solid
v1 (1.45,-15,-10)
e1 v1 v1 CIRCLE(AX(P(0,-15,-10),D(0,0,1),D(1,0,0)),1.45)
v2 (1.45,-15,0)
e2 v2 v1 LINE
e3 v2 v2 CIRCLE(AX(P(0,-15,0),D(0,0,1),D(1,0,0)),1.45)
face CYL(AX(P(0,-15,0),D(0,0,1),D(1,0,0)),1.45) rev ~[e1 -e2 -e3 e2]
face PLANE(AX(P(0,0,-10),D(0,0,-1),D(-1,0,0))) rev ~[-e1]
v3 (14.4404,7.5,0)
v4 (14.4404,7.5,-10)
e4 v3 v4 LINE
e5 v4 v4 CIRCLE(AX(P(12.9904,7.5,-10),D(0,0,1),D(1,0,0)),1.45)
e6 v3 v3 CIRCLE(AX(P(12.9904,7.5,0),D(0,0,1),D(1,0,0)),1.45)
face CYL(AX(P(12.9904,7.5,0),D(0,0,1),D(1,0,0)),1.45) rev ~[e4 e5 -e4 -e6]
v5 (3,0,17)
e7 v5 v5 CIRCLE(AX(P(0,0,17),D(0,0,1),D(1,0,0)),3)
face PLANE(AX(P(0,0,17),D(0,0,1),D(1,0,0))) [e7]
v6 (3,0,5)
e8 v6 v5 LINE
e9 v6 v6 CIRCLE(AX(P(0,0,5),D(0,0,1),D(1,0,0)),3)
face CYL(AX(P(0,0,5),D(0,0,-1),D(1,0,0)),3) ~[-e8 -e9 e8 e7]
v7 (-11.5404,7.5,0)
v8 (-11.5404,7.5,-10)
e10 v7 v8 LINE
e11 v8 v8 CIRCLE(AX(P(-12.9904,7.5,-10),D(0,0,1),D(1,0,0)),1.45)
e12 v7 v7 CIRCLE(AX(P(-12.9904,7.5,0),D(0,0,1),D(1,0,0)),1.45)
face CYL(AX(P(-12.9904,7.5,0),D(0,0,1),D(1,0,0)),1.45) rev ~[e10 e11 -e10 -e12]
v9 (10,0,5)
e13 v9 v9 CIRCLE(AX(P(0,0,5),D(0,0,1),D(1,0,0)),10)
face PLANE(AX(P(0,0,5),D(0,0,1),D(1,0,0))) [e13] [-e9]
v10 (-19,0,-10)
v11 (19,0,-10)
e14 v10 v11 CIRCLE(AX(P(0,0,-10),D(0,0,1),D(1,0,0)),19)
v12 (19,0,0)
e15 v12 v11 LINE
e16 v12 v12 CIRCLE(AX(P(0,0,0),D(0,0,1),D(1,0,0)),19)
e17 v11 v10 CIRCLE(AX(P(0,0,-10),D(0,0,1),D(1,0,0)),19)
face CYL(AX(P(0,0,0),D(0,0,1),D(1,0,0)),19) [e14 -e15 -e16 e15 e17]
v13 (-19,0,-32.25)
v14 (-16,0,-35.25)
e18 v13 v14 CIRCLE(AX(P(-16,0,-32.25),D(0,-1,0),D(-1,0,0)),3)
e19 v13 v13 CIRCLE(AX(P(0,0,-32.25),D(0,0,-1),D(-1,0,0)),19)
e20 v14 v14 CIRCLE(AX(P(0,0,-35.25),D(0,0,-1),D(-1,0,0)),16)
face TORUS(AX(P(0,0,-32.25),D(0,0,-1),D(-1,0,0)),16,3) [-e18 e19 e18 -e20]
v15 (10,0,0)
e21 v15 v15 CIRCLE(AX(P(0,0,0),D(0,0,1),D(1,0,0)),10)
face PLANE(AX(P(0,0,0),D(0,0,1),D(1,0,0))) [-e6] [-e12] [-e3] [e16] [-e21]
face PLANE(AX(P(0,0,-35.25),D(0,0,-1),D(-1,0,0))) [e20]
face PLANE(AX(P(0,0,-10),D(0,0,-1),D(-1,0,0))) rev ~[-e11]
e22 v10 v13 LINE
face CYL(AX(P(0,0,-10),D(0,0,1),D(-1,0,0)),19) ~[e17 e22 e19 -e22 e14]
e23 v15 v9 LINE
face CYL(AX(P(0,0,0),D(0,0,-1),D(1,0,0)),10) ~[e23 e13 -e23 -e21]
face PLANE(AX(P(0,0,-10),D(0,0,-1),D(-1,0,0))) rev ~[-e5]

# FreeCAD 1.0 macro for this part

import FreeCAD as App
import Part
import Sketcher

V = App.Vector
Q = App.Units.Quantity


def edges_at(feature, points):
    """Names of the edges that pass closest to the given points."""
    edges = feature.Shape.Edges
    near = lambda p: min(range(len(edges)), key=lambda i: edges[i].distToShape(Part.Vertex(*p))[0])
    return sorted({f"Edge{near(p) + 1}" for p in points})

doc = App.newDocument("Part")
params = doc.addObject("Spreadsheet::Sheet", "Params")
for row, (alias, value) in enumerate([
    ("sketch1_diameter", "38 mm"),
    ("sketch1_diameter2", "2.9 mm"),
    ("pad1_length", "10 mm"),
    ("sketch2_diameter", "38 mm"),
    ("pad2_length", "25.25 mm"),
    ("fillet_radius", "3 mm"),
    ("sketch3_diameter", "20 mm"),
    ("pad3_length", "5 mm"),
    ("sketch4_diameter", "6 mm"),
    ("pad4_length", "12 mm"),
], start=1):
    params.set(f"A{row}", alias)
    params.set(f"B{row}", "=" + value)
    params.setAlias(f"B{row}", alias)

body = doc.addObject("PartDesign::Body", "Body")

# Sketch on XY plane
sketch1 = body.newObject("Sketcher::SketchObject", "Sketch")
sketch1.AttachmentSupport = (doc.getObject("XY_Plane"), [""])
sketch1.MapMode = "FlatFace"
sketch1.addGeometry([
    Part.Circle(V(0, 0, 0), V(0, 0, 1), 19),
    Part.Circle(V(0, -15, 0), V(0, 0, 1), 1.45),
    Part.Circle(V(-12.9904, 7.5, 0), V(0, 0, 1), 1.45),
    Part.Circle(V(12.9904, 7.5, 0), V(0, 0, 1), 1.45),
], False)
sketch1.addConstraint([
    Sketcher.Constraint("Coincident", 0, 3, -1, 1),
    Sketcher.Constraint("Equal", 1, 2),
    Sketcher.Constraint("Equal", 2, 3),
    Sketcher.Constraint("Symmetric", 2, 3, 3, 3, -2),
    Sketcher.Constraint("PointOnObject", 1, 3, -2),
    Sketcher.Constraint("Diameter", 0, Q("38 mm")),
    Sketcher.Constraint("Diameter", 1, Q("2.9 mm")),
    Sketcher.Constraint("DistanceY", 1, 3, -1, 1, Q("15 mm")),
    Sketcher.Constraint("DistanceY", -1, 1, 2, 3, Q("7.5 mm")),
    Sketcher.Constraint("DistanceX", 2, 3, -1, 1, Q("12.9904 mm")),
])
sketch1.setExpression("Constraints[5]", "Params.sketch1_diameter")
sketch1.setExpression("Constraints[6]", "Params.sketch1_diameter2")
pad1 = body.newObject("PartDesign::Pad", "Pad")
pad1.Profile = sketch1
pad1.setExpression("Length", "Params.pad1_length")
pad1.Reversed = True

# Sketch on XY plane
sketch2 = body.newObject("Sketcher::SketchObject", "Sketch001")
sketch2.AttachmentSupport = (doc.getObject("XY_Plane"), [""])
sketch2.MapMode = "FlatFace"
sketch2.AttachmentOffset = App.Placement(V(0, 0, -10), App.Rotation())
sketch2.addGeometry(Part.Circle(V(0, 0, 0), V(0, 0, 1), 19), False)
sketch2.addConstraint([
    Sketcher.Constraint("Coincident", 0, 3, -1, 1),
    Sketcher.Constraint("Diameter", 0, Q("38 mm")),
])
sketch2.setExpression("Constraints[1]", "Params.sketch2_diameter")
pad2 = body.newObject("PartDesign::Pad", "Pad001")
pad2.Profile = sketch2
pad2.setExpression("Length", "Params.pad2_length")
pad2.Reversed = True
doc.recompute()

fillet = body.newObject("PartDesign::Fillet", "Fillet")
fillet.Base = (pad2, edges_at(pad2, [(19, 0, -35.25)]))
fillet.setExpression("Radius", "Params.fillet_radius")

# Sketch on XY plane
sketch3 = body.newObject("Sketcher::SketchObject", "Sketch002")
sketch3.AttachmentSupport = (doc.getObject("XY_Plane"), [""])
sketch3.MapMode = "FlatFace"
sketch3.addGeometry(Part.Circle(V(0, 0, 0), V(0, 0, 1), 10), False)
sketch3.addConstraint([
    Sketcher.Constraint("Coincident", 0, 3, -1, 1),
    Sketcher.Constraint("Diameter", 0, Q("20 mm")),
])
sketch3.setExpression("Constraints[1]", "Params.sketch3_diameter")
pad3 = body.newObject("PartDesign::Pad", "Pad002")
pad3.Profile = sketch3
pad3.setExpression("Length", "Params.pad3_length")

# Sketch on XY plane
sketch4 = body.newObject("Sketcher::SketchObject", "Sketch003")
sketch4.AttachmentSupport = (doc.getObject("XY_Plane"), [""])
sketch4.MapMode = "FlatFace"
sketch4.AttachmentOffset = App.Placement(V(0, 0, 5), App.Rotation())
sketch4.addGeometry(Part.Circle(V(0, 0, 0), V(0, 0, 1), 3), False)
sketch4.addConstraint([
    Sketcher.Constraint("Coincident", 0, 3, -1, 1),
    Sketcher.Constraint("Diameter", 0, Q("6 mm")),
])
sketch4.setExpression("Constraints[1]", "Params.sketch4_diameter")
pad4 = body.newObject("PartDesign::Pad", "Pad003")
pad4.Profile = sketch4
pad4.setExpression("Length", "Params.pad4_length")

doc.recompute()
